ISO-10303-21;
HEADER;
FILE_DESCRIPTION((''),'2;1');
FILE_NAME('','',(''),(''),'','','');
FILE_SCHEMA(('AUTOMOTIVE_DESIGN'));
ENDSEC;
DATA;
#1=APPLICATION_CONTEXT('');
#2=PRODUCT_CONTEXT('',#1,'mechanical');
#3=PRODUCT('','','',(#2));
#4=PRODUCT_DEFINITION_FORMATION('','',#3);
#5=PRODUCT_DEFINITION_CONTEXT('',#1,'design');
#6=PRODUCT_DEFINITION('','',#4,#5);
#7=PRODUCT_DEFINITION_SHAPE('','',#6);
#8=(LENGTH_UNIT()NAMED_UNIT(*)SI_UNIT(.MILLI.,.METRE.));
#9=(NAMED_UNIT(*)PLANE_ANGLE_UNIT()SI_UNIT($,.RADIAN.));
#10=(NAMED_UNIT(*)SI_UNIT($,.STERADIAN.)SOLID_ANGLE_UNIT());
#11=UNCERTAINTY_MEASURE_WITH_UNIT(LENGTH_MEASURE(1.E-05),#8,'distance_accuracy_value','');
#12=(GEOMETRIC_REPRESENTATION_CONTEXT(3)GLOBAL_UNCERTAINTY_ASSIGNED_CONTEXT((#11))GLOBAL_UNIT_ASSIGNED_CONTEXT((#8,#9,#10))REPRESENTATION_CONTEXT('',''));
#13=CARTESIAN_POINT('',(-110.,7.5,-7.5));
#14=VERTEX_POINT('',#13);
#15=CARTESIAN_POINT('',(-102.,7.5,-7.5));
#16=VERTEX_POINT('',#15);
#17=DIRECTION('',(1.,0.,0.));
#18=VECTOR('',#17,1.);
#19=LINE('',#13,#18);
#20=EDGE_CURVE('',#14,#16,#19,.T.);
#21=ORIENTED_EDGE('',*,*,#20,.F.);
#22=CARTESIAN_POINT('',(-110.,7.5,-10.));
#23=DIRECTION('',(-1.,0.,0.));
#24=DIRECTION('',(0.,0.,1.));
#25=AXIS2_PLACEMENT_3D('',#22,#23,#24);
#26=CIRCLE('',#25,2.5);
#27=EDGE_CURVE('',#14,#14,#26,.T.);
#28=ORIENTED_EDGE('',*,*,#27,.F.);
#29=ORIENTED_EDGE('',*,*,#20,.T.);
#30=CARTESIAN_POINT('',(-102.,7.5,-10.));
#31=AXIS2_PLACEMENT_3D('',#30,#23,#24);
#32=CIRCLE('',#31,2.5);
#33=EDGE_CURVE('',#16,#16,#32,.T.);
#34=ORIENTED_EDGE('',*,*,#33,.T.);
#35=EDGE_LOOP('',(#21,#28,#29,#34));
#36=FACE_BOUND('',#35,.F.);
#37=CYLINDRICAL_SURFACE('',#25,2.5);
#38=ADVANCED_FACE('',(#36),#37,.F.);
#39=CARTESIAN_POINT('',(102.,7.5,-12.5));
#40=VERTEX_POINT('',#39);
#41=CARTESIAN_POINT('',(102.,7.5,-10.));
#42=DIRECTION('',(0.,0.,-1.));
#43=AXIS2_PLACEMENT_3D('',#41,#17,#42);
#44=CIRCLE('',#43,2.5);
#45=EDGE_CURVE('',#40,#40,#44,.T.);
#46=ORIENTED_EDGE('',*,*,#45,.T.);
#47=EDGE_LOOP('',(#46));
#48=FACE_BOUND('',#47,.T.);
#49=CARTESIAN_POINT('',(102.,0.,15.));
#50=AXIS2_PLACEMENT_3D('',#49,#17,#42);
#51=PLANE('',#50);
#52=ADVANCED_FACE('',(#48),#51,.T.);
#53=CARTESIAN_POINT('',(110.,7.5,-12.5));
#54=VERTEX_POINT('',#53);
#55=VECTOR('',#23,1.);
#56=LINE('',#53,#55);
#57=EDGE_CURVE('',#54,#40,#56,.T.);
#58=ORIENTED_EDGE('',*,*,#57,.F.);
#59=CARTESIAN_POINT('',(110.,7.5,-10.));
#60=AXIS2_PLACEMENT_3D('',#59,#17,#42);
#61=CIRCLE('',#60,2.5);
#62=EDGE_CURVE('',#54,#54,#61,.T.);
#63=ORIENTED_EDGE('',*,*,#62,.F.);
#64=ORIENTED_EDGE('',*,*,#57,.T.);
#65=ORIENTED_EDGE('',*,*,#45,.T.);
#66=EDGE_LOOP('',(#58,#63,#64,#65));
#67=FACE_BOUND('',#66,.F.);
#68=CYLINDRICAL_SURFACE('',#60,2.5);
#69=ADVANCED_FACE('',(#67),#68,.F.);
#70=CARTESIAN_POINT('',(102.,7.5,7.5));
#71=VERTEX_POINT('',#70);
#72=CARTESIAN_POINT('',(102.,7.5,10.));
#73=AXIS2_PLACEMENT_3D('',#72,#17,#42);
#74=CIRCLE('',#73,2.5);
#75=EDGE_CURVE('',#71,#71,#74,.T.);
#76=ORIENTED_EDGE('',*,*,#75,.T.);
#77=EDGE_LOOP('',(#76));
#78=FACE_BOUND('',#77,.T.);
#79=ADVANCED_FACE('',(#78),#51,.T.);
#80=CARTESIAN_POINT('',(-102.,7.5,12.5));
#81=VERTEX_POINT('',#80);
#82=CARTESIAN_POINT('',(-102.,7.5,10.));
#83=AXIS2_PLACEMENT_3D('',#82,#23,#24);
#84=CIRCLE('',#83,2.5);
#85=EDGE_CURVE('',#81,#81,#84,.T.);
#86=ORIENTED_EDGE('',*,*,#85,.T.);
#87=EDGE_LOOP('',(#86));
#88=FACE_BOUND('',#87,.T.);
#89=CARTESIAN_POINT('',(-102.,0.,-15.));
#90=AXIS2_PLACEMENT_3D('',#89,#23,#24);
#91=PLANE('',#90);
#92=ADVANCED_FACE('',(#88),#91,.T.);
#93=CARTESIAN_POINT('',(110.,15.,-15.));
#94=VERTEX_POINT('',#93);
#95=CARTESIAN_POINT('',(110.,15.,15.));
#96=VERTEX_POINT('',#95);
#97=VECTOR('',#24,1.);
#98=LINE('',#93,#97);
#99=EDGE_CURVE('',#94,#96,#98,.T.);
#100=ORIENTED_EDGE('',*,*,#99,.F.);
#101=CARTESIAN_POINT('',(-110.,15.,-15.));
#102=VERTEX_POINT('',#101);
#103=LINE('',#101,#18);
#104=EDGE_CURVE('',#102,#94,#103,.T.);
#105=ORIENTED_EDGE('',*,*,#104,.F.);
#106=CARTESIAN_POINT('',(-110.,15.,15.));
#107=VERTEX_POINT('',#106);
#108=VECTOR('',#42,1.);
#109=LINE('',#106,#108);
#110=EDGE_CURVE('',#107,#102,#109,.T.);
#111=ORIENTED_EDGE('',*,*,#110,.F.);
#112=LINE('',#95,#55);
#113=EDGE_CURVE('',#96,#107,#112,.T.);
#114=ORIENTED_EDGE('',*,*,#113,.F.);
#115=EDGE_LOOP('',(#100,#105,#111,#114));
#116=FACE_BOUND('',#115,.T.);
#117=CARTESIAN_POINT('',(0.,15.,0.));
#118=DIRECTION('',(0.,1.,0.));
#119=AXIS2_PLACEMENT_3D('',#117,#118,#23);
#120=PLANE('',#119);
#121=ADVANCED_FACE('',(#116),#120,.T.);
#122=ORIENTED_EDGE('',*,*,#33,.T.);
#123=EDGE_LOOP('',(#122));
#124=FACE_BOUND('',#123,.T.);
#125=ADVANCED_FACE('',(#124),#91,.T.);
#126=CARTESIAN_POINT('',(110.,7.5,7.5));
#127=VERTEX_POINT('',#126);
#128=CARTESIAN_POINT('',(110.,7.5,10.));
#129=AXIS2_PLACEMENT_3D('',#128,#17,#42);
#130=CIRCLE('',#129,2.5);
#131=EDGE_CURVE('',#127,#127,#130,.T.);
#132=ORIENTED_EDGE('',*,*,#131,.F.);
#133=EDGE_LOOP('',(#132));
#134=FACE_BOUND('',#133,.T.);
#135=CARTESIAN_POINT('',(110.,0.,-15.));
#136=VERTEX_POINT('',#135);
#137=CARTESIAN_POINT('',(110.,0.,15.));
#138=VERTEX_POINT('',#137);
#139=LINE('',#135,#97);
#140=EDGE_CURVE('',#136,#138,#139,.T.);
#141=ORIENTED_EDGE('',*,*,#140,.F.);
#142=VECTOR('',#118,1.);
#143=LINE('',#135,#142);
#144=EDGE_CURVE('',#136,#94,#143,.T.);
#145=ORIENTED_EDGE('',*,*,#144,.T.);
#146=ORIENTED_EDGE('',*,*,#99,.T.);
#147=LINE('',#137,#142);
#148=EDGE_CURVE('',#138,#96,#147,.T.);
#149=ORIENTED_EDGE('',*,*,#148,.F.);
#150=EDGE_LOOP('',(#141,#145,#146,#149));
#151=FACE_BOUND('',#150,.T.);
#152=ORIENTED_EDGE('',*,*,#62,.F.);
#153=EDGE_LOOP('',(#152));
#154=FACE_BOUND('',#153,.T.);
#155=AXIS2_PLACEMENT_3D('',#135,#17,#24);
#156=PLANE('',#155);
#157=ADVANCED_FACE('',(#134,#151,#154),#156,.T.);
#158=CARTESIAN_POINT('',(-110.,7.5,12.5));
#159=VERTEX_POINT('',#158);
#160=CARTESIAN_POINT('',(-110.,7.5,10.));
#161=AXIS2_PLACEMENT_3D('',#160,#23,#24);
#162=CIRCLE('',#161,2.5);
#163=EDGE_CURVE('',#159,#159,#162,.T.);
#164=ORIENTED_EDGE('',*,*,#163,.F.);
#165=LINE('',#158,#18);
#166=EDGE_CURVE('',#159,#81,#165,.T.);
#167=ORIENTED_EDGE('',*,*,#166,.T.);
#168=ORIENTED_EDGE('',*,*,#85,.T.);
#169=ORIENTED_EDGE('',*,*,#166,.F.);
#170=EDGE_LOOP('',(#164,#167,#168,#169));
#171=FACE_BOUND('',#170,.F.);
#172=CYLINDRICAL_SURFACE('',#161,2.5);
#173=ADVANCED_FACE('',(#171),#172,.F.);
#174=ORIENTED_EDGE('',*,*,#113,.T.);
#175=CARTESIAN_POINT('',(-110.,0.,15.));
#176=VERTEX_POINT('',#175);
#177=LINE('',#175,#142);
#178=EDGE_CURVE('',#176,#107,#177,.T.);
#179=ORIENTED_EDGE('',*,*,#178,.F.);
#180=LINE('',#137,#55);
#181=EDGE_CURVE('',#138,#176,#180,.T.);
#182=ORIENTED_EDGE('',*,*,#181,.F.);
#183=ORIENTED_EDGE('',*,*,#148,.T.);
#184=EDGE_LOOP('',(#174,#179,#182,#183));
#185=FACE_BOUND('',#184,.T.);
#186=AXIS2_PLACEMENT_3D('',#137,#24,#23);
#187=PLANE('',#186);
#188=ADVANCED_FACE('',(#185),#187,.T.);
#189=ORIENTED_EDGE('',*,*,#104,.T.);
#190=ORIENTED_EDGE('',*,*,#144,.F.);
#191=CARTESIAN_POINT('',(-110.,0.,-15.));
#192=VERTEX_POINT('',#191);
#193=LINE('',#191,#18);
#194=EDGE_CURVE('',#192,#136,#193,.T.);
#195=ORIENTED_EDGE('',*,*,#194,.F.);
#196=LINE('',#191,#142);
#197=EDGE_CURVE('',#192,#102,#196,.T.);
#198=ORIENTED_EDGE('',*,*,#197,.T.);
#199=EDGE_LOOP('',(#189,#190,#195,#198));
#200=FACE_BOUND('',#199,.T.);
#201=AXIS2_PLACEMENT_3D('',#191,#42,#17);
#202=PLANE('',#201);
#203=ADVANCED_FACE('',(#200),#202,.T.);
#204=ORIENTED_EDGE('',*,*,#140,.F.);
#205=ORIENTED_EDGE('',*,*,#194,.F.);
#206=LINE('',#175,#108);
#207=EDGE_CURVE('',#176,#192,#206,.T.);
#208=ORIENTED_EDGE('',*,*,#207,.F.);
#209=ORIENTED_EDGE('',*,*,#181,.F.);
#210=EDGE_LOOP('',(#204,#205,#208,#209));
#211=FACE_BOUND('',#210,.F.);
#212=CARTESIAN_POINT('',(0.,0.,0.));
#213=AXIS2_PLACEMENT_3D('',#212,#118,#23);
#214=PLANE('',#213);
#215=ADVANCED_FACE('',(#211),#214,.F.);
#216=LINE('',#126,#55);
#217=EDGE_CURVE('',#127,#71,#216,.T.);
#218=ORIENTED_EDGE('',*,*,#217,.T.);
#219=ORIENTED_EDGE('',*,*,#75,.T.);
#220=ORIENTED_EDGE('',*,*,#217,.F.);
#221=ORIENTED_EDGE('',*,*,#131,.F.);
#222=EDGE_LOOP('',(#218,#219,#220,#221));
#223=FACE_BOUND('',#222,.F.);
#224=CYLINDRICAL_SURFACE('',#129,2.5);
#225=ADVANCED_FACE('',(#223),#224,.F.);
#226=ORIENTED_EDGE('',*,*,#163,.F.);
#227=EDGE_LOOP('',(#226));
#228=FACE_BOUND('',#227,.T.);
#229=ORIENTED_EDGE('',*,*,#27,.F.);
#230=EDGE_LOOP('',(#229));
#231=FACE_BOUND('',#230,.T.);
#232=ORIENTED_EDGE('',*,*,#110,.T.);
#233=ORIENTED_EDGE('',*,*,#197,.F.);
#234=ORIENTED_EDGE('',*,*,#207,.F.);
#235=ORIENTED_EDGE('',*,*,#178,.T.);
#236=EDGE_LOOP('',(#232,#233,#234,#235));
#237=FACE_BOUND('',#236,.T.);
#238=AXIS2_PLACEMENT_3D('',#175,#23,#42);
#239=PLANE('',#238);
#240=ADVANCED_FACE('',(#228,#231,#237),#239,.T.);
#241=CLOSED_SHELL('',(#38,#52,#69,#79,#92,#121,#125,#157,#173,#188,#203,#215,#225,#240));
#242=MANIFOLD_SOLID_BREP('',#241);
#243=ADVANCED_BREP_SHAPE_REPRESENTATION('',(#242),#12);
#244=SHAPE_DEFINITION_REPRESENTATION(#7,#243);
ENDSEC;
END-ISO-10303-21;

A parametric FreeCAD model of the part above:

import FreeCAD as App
import Part
import Sketcher
from FreeCAD import Vector


def add_polygon(sketch, points):
    """Adds a closed chain of lines whose ends are joined by coincident constraints."""
    first, n = sketch.GeometryCount, len(points)
    for a, b in zip(points, points[1:] + points[:1]):
        sketch.addGeometry(Part.LineSegment(App.Vector(*a, 0), App.Vector(*b, 0)), False)
    for i in range(n):
        sketch.addConstraint(Sketcher.Constraint("Coincident", first + i, 2, first + (i + 1) % n, 1))

doc = App.newDocument("Part")
params = doc.addObject("Spreadsheet::Sheet", "Params")
for row, (alias, value) in enumerate([
    ("sketch1_width", "220 mm"),
    ("sketch1_height", "30 mm"),
    ("pad1_length", "15 mm"),
    ("sketch2_diameter", "5 mm"),
    ("pocket1_length", "8 mm"),
    ("sketch3_diameter", "5 mm"),
    ("pocket2_length", "8 mm"),
], start=1):
    params.set(f"A{row}", alias)
    params.set(f"B{row}", "=" + value)
    params.setAlias(f"B{row}", alias)

body = doc.addObject("PartDesign::Body", "Body")

# Sketch on XZ plane
sketch1 = body.newObject("Sketcher::SketchObject", "Sketch")
sketch1.AttachmentSupport = (doc.getObject("XZ_Plane"), [""])
sketch1.MapMode = "FlatFace"
add_polygon(sketch1, [(110, -15), (-110, -15), (-110, 15), (110, 15)])  # lines 0-3
sketch1.addConstraint([
    Sketcher.Constraint("Horizontal", 0),
    Sketcher.Constraint("Vertical", 1),
    Sketcher.Constraint("Horizontal", 2),
    Sketcher.Constraint("Vertical", 3),
    Sketcher.Constraint("Symmetric", 0, 2, 2, 2, -1, 1),
    Sketcher.Constraint("DistanceX", 0, 2, 0, 1, 220.0),
    Sketcher.Constraint("DistanceY", 1, 1, 1, 2, 30.0),
])
sketch1.setExpression("Constraints[9]", "Params.sketch1_width")
sketch1.setExpression("Constraints[10]", "Params.sketch1_height")
pad1 = body.newObject("PartDesign::Pad", "Pad")
pad1.Profile = sketch1
pad1.setExpression("Length", "Params.pad1_length")
pad1.Reversed = True

# Sketch on YZ plane
sketch2 = body.newObject("Sketcher::SketchObject", "Sketch001")
sketch2.AttachmentSupport = (doc.getObject("YZ_Plane"), [""])
sketch2.MapMode = "FlatFace"
sketch2.AttachmentOffset = App.Placement(Vector(0, 0, -110), App.Rotation())
sketch2.addGeometry([
    Part.Circle(Vector(7.5, -10, 0), Vector(0, 0, 1), 2.5),
    Part.Circle(Vector(7.5, 10, 0), Vector(0, 0, 1), 2.5),
], False)
sketch2.addConstraint([
    Sketcher.Constraint("Equal", 0, 1),
    Sketcher.Constraint("Symmetric", 0, 3, 1, 3, -1),
    Sketcher.Constraint("Diameter", 0, 5.0),
    Sketcher.Constraint("DistanceY", 0, 3, 1, 3, 20.0),
    Sketcher.Constraint("DistanceX", -1, 1, 0, 3, 7.5),
])
sketch2.setExpression("Constraints[2]", "Params.sketch2_diameter")
pocket1 = body.newObject("PartDesign::Pocket", "Pocket")
pocket1.Profile = sketch2
pocket1.setExpression("Length", "Params.pocket1_length")
pocket1.Reversed = True

# Sketch on YZ plane
sketch3 = body.newObject("Sketcher::SketchObject", "Sketch002")
sketch3.AttachmentSupport = (doc.getObject("YZ_Plane"), [""])
sketch3.MapMode = "FlatFace"
sketch3.AttachmentOffset = App.Placement(Vector(0, 0, 110), App.Rotation())
sketch3.addGeometry([
    Part.Circle(Vector(7.5, -10, 0), Vector(0, 0, 1), 2.5),
    Part.Circle(Vector(7.5, 10, 0), Vector(0, 0, 1), 2.5),
], False)
sketch3.addConstraint([
    Sketcher.Constraint("Equal", 0, 1),
    Sketcher.Constraint("Symmetric", 0, 3, 1, 3, -1),
    Sketcher.Constraint("Diameter", 0, 5.0),
    Sketcher.Constraint("DistanceY", 0, 3, -1, 1, 10.0),
    Sketcher.Constraint("DistanceX", -1, 1, 0, 3, 7.5),
])
sketch3.setExpression("Constraints[2]", "Params.sketch3_diameter")
pocket2 = body.newObject("PartDesign::Pocket", "Pocket001")
pocket2.Profile = sketch3
pocket2.setExpression("Length", "Params.pocket2_length")

doc.recompute()
